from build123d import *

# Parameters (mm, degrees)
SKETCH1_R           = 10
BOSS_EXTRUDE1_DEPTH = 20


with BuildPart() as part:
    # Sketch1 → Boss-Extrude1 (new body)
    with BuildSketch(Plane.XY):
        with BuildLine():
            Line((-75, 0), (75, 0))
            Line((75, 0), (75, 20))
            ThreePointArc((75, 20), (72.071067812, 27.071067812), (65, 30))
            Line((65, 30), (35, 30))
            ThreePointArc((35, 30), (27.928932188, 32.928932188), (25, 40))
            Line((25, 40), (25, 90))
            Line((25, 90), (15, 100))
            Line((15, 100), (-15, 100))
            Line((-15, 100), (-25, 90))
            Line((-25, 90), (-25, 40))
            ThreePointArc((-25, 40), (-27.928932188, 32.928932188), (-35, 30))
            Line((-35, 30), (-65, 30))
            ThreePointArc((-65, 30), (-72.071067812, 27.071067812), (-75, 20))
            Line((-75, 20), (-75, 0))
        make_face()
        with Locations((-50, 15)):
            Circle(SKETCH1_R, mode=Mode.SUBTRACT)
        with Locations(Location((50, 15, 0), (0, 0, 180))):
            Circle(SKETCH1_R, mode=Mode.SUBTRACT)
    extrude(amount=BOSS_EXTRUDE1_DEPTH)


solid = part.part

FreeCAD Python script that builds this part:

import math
import FreeCAD as App
import Part
import Sketcher

V = App.Vector

doc = App.newDocument("Part")
body = doc.addObject("PartDesign::Body", "Body")

# Sketch on XY plane
sketch1 = doc.addObject("Sketcher::SketchObject", "Sketch")
body.addObject(sketch1)
sketch1.AttachmentSupport = (doc.XY_Plane, [""])
sketch1.MapMode = "FlatFace"
sketch1.addGeometry(Part.LineSegment(V(-75, 0, 0), V(75, 0, 0)), False)
sketch1.addGeometry(Part.LineSegment(V(75, 0, 0), V(75, 20, 0)), False)
sketch1.addGeometry(Part.ArcOfCircle(Part.Circle(V(65, 20, 0), V(0, 0, 1), 10), math.radians(0), math.radians(90)), False)
sketch1.addGeometry(Part.LineSegment(V(65, 30, 0), V(35, 30, 0)), False)
sketch1.addGeometry(Part.ArcOfCircle(Part.Circle(V(35, 40, 0), V(0, 0, 1), 10), math.radians(180), math.radians(270)), False)
sketch1.addGeometry(Part.LineSegment(V(25, 40, 0), V(25, 90, 0)), False)
sketch1.addGeometry(Part.LineSegment(V(25, 90, 0), V(15, 100, 0)), False)
sketch1.addGeometry(Part.LineSegment(V(15, 100, 0), V(-15, 100, 0)), False)
sketch1.addGeometry(Part.LineSegment(V(-15, 100, 0), V(-25, 90, 0)), False)
sketch1.addGeometry(Part.LineSegment(V(-25, 90, 0), V(-25, 40, 0)), False)
sketch1.addGeometry(Part.ArcOfCircle(Part.Circle(V(-35, 40, 0), V(0, 0, 1), 10), math.radians(-90), math.radians(0)), False)
sketch1.addGeometry(Part.LineSegment(V(-35, 30, 0), V(-65, 30, 0)), False)
sketch1.addGeometry(Part.ArcOfCircle(Part.Circle(V(-65, 20, 0), V(0, 0, 1), 10), math.radians(90), math.radians(180)), False)
sketch1.addGeometry(Part.LineSegment(V(-75, 20, 0), V(-75, 0, 0)), False)
sketch1.addGeometry(Part.Circle(V(-50, 15, 0), V(0, 0, 1), 10), False)
sketch1.addGeometry(Part.Circle(V(50, 15, 0), V(0, 0, 1), 10), False)
sketch1.addConstraint(Sketcher.Constraint("Coincident", 0, 2, 1, 1))
sketch1.addConstraint(Sketcher.Constraint("Tangent", 1, 2, 2, 1))
sketch1.addConstraint(Sketcher.Constraint("Tangent", 2, 2, 3, 1))
sketch1.addConstraint(Sketcher.Constraint("Tangent", 3, 2, 4, 2))
sketch1.addConstraint(Sketcher.Constraint("Tangent", 4, 1, 5, 1))
sketch1.addConstraint(Sketcher.Constraint("Coincident", 5, 2, 6, 1))
sketch1.addConstraint(Sketcher.Constraint("Coincident", 6, 2, 7, 1))
sketch1.addConstraint(Sketcher.Constraint("Coincident", 7, 2, 8, 1))
sketch1.addConstraint(Sketcher.Constraint("Coincident", 8, 2, 9, 1))
sketch1.addConstraint(Sketcher.Constraint("Tangent", 9, 2, 10, 2))
sketch1.addConstraint(Sketcher.Constraint("Tangent", 10, 1, 11, 1))
sketch1.addConstraint(Sketcher.Constraint("Tangent", 11, 2, 12, 1))
sketch1.addConstraint(Sketcher.Constraint("Tangent", 12, 2, 13, 1))
sketch1.addConstraint(Sketcher.Constraint("Coincident", 13, 2, 0, 1))
sketch1.addConstraint(Sketcher.Constraint("Horizontal", 0))
sketch1.addConstraint(Sketcher.Constraint("Vertical", 1))
sketch1.addConstraint(Sketcher.Constraint("Horizontal", 3))
sketch1.addConstraint(Sketcher.Constraint("Vertical", 5))
sketch1.addConstraint(Sketcher.Constraint("Horizontal", 7))
sketch1.addConstraint(Sketcher.Constraint("Vertical", 9))
sketch1.addConstraint(Sketcher.Constraint("Horizontal", 11))
sketch1.addConstraint(Sketcher.Constraint("Vertical", 13))
sketch1.addConstraint(Sketcher.Constraint("Equal", 2, 4))
sketch1.addConstraint(Sketcher.Constraint("Equal", 4, 10))
sketch1.addConstraint(Sketcher.Constraint("Equal", 10, 12))
sketch1.addConstraint(Sketcher.Constraint("Equal", 12, 14))
sketch1.addConstraint(Sketcher.Constraint("Equal", 14, 15))
sketch1.addConstraint(Sketcher.Constraint("Symmetric", 0, 2, 13, 2, -1, 1))
sketch1.addConstraint(Sketcher.Constraint("Symmetric", 4, 3, 10, 3, -2))
sketch1.addConstraint(Sketcher.Constraint("Symmetric", 14, 3, 15, 3, -2))
sketch1.addConstraint(Sketcher.Constraint("Perpendicular", 6, 8))
sketch1.addConstraint(Sketcher.Constraint("Horizontal", 5, 2, 8, 2))
sketch1.addConstraint(Sketcher.Constraint("Equal", 3, 7))
sketch1.addConstraint(Sketcher.Constraint("Equal", 6, 8))
sketch1.addConstraint(Sketcher.Constraint("Diameter", 14, 20.0))
sketch1.addConstraint(Sketcher.Constraint("DistanceX", 0, 1, 0, 2, 150.0))
sketch1.addConstraint(Sketcher.Constraint("DistanceX", 3, 2, 3, 1, 30.0))
sketch1.addConstraint(Sketcher.Constraint("DistanceY", 1, 1, 1, 2, 20.0))
sketch1.addConstraint(Sketcher.Constraint("DistanceY", 5, 1, 5, 2, 50.0))
sketch1.addConstraint(Sketcher.Constraint("DistanceX", 14, 3, -1, 1, 50.0))
sketch1.addConstraint(Sketcher.Constraint("DistanceY", -1, 1, 14, 3, 15.0))
pad1 = doc.addObject("PartDesign::Pad", "Pad")
body.addObject(pad1)
pad1.Profile = sketch1
pad1.Length = 20

doc.recompute()
